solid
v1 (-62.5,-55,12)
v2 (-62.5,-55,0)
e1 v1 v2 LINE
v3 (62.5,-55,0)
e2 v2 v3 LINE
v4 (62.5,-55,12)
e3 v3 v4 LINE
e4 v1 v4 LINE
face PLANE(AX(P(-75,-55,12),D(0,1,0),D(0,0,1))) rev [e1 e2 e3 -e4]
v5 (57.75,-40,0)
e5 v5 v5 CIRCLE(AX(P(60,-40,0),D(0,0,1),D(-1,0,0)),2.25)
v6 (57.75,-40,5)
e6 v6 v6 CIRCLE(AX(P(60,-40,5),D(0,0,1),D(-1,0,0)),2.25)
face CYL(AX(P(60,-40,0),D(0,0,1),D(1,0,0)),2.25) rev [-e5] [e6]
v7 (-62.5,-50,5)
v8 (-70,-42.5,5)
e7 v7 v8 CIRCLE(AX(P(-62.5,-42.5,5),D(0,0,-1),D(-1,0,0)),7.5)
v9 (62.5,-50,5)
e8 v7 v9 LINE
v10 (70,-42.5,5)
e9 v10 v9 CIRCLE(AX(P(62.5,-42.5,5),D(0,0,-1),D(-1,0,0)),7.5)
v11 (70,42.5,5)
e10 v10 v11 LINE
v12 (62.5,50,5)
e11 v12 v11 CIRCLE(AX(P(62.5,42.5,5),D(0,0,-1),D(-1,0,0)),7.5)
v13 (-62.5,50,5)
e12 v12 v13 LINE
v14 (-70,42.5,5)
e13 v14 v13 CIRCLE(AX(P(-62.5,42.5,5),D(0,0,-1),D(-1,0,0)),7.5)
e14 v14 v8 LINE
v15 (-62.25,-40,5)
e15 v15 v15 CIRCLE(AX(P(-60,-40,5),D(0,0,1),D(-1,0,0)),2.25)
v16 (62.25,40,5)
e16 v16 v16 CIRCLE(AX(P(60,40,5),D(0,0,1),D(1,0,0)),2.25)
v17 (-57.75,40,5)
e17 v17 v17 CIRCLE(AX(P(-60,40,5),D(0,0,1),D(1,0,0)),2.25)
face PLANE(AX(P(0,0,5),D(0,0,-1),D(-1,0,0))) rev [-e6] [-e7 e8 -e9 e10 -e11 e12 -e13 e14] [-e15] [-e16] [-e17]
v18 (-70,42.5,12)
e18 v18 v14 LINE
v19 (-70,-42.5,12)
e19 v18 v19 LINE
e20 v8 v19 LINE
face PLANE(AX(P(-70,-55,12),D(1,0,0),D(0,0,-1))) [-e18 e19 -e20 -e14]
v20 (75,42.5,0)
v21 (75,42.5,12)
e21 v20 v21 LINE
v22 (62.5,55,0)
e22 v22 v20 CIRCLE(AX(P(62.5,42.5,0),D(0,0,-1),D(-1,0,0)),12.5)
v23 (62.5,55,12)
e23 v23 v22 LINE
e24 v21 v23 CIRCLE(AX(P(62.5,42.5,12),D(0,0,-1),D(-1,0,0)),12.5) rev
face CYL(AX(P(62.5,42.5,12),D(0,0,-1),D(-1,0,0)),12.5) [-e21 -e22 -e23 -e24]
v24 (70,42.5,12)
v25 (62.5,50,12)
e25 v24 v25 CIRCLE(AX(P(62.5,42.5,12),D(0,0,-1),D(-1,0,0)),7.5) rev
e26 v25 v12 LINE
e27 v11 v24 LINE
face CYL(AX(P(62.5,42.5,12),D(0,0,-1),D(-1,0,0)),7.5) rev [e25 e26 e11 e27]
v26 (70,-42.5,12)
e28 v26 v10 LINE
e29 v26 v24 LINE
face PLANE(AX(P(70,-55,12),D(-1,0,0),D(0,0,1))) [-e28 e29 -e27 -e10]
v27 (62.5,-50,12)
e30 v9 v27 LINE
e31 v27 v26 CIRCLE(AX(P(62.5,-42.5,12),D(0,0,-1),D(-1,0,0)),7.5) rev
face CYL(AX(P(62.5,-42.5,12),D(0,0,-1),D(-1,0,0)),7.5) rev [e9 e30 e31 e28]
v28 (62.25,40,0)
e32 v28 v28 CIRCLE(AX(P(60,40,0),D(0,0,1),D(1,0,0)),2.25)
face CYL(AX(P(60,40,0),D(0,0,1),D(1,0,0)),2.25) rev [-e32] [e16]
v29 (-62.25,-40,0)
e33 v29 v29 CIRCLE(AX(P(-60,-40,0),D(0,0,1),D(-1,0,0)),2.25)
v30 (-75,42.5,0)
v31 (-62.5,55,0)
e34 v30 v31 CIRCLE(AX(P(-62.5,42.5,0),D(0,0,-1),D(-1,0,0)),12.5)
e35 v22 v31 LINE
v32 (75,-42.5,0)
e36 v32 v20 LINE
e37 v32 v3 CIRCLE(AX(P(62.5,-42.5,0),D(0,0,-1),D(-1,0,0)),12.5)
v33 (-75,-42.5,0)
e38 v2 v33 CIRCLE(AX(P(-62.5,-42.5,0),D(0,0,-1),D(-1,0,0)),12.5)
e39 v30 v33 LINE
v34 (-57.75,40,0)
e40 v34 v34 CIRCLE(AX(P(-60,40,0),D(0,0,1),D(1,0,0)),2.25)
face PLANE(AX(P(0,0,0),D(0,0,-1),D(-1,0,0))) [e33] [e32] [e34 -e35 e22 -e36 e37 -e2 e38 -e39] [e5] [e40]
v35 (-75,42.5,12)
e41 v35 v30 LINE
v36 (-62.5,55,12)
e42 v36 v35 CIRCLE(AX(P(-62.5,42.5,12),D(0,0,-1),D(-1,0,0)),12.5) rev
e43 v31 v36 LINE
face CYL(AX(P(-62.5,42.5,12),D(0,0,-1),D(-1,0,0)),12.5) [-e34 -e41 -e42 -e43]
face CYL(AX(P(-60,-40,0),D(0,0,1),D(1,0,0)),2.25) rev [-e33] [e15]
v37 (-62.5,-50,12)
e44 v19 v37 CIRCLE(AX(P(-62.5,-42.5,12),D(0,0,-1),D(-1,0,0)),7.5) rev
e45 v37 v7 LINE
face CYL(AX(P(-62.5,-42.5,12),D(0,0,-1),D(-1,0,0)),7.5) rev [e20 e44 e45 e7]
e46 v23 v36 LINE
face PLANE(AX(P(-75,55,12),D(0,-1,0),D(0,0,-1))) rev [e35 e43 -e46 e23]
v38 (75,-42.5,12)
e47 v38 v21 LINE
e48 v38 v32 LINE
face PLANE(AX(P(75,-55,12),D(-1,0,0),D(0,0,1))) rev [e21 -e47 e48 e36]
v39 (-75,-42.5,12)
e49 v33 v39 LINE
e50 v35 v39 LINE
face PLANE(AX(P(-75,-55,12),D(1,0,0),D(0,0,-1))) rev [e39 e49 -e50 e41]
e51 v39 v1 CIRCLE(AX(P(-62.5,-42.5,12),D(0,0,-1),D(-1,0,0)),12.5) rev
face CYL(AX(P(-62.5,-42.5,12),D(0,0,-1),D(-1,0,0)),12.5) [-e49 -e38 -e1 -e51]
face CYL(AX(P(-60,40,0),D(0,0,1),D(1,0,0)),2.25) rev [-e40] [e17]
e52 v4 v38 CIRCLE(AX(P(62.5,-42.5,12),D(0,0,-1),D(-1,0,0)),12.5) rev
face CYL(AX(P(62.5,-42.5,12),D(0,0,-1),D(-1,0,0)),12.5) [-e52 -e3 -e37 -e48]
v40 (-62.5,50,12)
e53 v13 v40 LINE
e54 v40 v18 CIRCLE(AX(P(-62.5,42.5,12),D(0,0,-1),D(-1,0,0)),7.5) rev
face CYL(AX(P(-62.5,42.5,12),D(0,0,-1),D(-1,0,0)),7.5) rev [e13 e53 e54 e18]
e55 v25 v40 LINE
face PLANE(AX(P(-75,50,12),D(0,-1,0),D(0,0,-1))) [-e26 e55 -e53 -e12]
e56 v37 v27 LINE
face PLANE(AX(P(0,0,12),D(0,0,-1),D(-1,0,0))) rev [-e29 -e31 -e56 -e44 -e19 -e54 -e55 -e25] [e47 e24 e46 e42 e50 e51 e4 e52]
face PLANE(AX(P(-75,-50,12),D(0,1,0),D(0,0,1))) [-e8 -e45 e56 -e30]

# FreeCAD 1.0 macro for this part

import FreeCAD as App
import Part
import Sketcher


def edges_at(feature, points):
    """Names of the edges that pass closest to the given points."""
    edges = feature.Shape.Edges
    near = lambda p: min(range(len(edges)), key=lambda i: edges[i].distToShape(Part.Vertex(*p))[0])
    return sorted({f"Edge{near(p) + 1}" for p in points})


def faces_at(feature, points):
    """Names of the faces that lie closest to the given points."""
    faces = feature.Shape.Faces
    near = lambda p: min(range(len(faces)), key=lambda i: faces[i].distToShape(Part.Vertex(*p))[0])
    return sorted({f"Face{near(p) + 1}" for p in points})

doc = App.newDocument("Part")
body = doc.addObject("PartDesign::Body", "Body")

# Sketch on XY plane
sketch1 = doc.addObject("Sketcher::SketchObject", "Sketch")
body.addObject(sketch1)
sketch1.AttachmentSupport = (doc.XY_Plane, [""])
sketch1.MapMode = "FlatFace"
sketch1.addGeometry(Part.LineSegment(App.Vector(-75, 55, 0), App.Vector(-75, -55, 0)), False)
sketch1.addGeometry(Part.LineSegment(App.Vector(-75, -55, 0), App.Vector(75, -55, 0)), False)
sketch1.addGeometry(Part.LineSegment(App.Vector(75, -55, 0), App.Vector(75, 55, 0)), False)
sketch1.addGeometry(Part.LineSegment(App.Vector(75, 55, 0), App.Vector(-75, 55, 0)), False)
sketch1.addConstraint(Sketcher.Constraint("Coincident", 0, 2, 1, 1))
sketch1.addConstraint(Sketcher.Constraint("Coincident", 1, 2, 2, 1))
sketch1.addConstraint(Sketcher.Constraint("Coincident", 2, 2, 3, 1))
sketch1.addConstraint(Sketcher.Constraint("Coincident", 3, 2, 0, 1))
sketch1.addConstraint(Sketcher.Constraint("Vertical", 0))
sketch1.addConstraint(Sketcher.Constraint("Horizontal", 1))
sketch1.addConstraint(Sketcher.Constraint("Vertical", 2))
sketch1.addConstraint(Sketcher.Constraint("Horizontal", 3))
sketch1.addConstraint(Sketcher.Constraint("Symmetric", 0, 2, 2, 2, -1, 1))
sketch1.addConstraint(Sketcher.Constraint("DistanceX", 1, 1, 1, 2, 150.0))
sketch1.addConstraint(Sketcher.Constraint("DistanceY", 0, 2, 0, 1, 110.0))
pad1 = doc.addObject("PartDesign::Pad", "Pad")
body.addObject(pad1)
pad1.Profile = sketch1
pad1.Length = 12
doc.recompute()

fillet = doc.addObject("PartDesign::Fillet", "Fillet")
body.addObject(fillet)
fillet.Base = (pad1, edges_at(pad1, [
    (75, -55, 6),
    (-75, -55, 6),
    (-75, 55, 6),
    (75, 55, 6),
]))
fillet.Radius = 12.5
doc.recompute()

thickness = doc.addObject("PartDesign::Thickness", "Thickness")
body.addObject(thickness)
thickness.Base = (fillet, faces_at(fillet, [(0, 0, 12)]))
thickness.Value = 5
thickness.Reversed = True
thickness.Join = "Intersection"

# Sketch on XY plane
sketch2 = doc.addObject("Sketcher::SketchObject", "Sketch001")
body.addObject(sketch2)
sketch2.AttachmentSupport = (doc.XY_Plane, [""])
sketch2.MapMode = "FlatFace"
sketch2.AttachmentOffset = App.Placement(App.Vector(0, 0, 5), App.Rotation())
sketch2.addGeometry(Part.Circle(App.Vector(-60, 40, 0), App.Vector(0, 0, 1), 2.2), False)
sketch2.addGeometry(Part.Circle(App.Vector(60, 40, 0), App.Vector(0, 0, 1), 2.2), False)
sketch2.addGeometry(Part.Circle(App.Vector(60, -40, 0), App.Vector(0, 0, 1), 2.2), False)
sketch2.addGeometry(Part.Circle(App.Vector(-60, -40, 0), App.Vector(0, 0, 1), 2.2), False)
sketch2.addConstraint(Sketcher.Constraint("Equal", 0, 1))
sketch2.addConstraint(Sketcher.Constraint("Equal", 1, 2))
sketch2.addConstraint(Sketcher.Constraint("Equal", 2, 3))
sketch2.addConstraint(Sketcher.Constraint("Symmetric", 0, 3, 2, 3, -1, 1))
sketch2.addConstraint(Sketcher.Constraint("Symmetric", 1, 3, 3, 3, -1, 1))
sketch2.addConstraint(Sketcher.Constraint("Symmetric", 0, 3, 1, 3, -2))
sketch2.addConstraint(Sketcher.Constraint("Diameter", 0, 4.5))
sketch2.addConstraint(Sketcher.Constraint("DistanceX", 0, 3, -1, 1, 60.0))
sketch2.addConstraint(Sketcher.Constraint("DistanceY", -1, 1, 0, 3, 40.0))
pocket1 = doc.addObject("PartDesign::Pocket", "Pocket")
body.addObject(pocket1)
pocket1.Profile = sketch2
pocket1.Type = "ThroughAll"

doc.recompute()
